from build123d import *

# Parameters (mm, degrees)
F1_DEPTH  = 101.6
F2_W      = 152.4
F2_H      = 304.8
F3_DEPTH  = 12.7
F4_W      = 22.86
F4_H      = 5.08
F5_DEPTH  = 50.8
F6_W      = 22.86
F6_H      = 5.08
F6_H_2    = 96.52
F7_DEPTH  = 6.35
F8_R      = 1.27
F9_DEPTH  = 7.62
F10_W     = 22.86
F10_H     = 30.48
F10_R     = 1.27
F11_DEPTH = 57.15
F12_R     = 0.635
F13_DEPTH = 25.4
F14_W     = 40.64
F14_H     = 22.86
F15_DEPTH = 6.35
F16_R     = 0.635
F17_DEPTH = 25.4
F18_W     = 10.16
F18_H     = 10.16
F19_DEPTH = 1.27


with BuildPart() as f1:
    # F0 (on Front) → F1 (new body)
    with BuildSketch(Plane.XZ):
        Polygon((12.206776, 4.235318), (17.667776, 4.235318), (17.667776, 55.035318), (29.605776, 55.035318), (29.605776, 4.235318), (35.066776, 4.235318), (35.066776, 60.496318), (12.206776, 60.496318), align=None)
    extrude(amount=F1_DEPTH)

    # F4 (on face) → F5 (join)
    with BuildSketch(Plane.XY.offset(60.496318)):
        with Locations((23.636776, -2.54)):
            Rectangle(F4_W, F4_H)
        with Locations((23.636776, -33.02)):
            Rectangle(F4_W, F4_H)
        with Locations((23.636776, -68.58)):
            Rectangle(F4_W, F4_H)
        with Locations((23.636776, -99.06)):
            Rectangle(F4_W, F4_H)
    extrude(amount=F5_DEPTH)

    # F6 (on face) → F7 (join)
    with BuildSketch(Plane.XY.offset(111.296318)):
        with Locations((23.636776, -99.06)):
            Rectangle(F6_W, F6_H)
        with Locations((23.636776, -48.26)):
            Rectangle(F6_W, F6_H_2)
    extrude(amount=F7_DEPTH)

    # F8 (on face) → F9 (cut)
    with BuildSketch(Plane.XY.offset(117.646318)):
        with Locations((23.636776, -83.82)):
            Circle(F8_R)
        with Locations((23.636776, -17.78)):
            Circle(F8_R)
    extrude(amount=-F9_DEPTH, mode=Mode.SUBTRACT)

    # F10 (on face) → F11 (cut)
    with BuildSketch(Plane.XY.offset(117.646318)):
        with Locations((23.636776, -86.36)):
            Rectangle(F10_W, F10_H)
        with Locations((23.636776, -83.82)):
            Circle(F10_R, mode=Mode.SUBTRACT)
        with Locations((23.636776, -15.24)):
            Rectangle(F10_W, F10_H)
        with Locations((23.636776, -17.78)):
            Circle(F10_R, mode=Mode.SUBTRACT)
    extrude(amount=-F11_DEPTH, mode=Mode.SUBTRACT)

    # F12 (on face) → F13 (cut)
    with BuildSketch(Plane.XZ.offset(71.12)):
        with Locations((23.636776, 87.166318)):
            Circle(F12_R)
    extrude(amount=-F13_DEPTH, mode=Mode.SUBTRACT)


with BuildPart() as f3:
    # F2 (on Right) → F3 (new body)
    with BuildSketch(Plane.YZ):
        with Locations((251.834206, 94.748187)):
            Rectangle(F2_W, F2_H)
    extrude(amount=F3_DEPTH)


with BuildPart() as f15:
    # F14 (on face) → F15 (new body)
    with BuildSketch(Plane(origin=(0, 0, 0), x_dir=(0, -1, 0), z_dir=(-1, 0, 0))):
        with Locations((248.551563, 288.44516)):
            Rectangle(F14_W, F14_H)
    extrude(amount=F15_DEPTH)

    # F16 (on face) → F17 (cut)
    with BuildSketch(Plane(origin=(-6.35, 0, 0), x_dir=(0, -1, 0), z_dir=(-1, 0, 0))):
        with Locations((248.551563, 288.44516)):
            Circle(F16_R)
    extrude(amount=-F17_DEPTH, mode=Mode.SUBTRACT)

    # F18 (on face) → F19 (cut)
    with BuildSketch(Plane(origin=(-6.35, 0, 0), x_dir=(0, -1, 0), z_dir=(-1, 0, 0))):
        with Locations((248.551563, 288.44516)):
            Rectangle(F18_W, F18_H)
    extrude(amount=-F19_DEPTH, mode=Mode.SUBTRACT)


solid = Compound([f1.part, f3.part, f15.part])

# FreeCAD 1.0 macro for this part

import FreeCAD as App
import Part
import Sketcher
from FreeCAD import Vector
Q = App.Units.Quantity


def add_polygon(sketch, points):
    """Adds a closed chain of lines whose ends are joined by coincident constraints."""
    first, n = sketch.GeometryCount, len(points)
    for a, b in zip(points, points[1:] + points[:1]):
        sketch.addGeometry(Part.LineSegment(App.Vector(*a, 0), App.Vector(*b, 0)), False)
    for i in range(n):
        sketch.addConstraint(Sketcher.Constraint("Coincident", first + i, 2, first + (i + 1) % n, 1))

doc = App.newDocument("Part")
body = doc.addObject("PartDesign::Body", "Body")

sketch1 = doc.addObject("Sketcher::SketchObject", "Sketch")
body.addObject(sketch1)
sketch1.AttachmentSupport = (doc.XZ_Plane, [""])
sketch1.MapMode = "FlatFace"
add_polygon(sketch1, [(12.206776, 4.235318), (17.667776, 4.235318), (17.667776, 55.035318), (29.605776, 55.035318), (29.605776, 4.235318), (35.066776, 4.235318), (35.066776, 60.496318), (12.206776, 60.496318)])
sketch1.addConstraint(Sketcher.Constraint("Horizontal", 0))
sketch1.addConstraint(Sketcher.Constraint("Vertical", 1))
sketch1.addConstraint(Sketcher.Constraint("Horizontal", 2))
sketch1.addConstraint(Sketcher.Constraint("Vertical", 3))
sketch1.addConstraint(Sketcher.Constraint("Horizontal", 4))
sketch1.addConstraint(Sketcher.Constraint("Vertical", 5))
sketch1.addConstraint(Sketcher.Constraint("Horizontal", 6))
sketch1.addConstraint(Sketcher.Constraint("Vertical", 7))
sketch1.addConstraint(Sketcher.Constraint("Horizontal", 0, 2, 3, 2))
sketch1.addConstraint(Sketcher.Constraint("Equal", 0, 4))
sketch1.addConstraint(Sketcher.Constraint("DistanceY", 1, 1, 1, 2, Q("2 in")))
sketch1.addConstraint(Sketcher.Constraint("DistanceX", 6, 2, 6, 1, Q("0.9 in")))
sketch1.addConstraint(Sketcher.Constraint("DistanceX", 2, 1, 2, 2, Q("0.47 in")))
sketch1.addConstraint(Sketcher.Constraint("DistanceY", 5, 1, 5, 2, Q("2.215 in")))
sketch1.addConstraint(Sketcher.Constraint("DistanceY", -1, 1, 0, 2, 4.235318))
sketch1.addConstraint(Sketcher.Constraint("DistanceX", -1, 1, 0, 2, 17.667776))
pad1 = doc.addObject("PartDesign::Pad", "Pad")
body.addObject(pad1)
pad1.Profile = sketch1
pad1.Length = Q("4 in")

sketch2 = doc.addObject("Sketcher::SketchObject", "Sketch001")
body.addObject(sketch2)
sketch2.AttachmentSupport = (doc.XY_Plane, [""])
sketch2.MapMode = "FlatFace"
sketch2.AttachmentOffset = App.Placement(Vector(0, 0, 60.496318), App.Rotation())
add_polygon(sketch2, [(12.206776, 0), (12.206776, -5.08), (35.066776, -5.08), (35.066776, 0)])
add_polygon(sketch2, [(12.206776, -30.48), (12.206776, -35.56), (35.066776, -35.56), (35.066776, -30.48)])
add_polygon(sketch2, [(12.206776, -66.04), (12.206776, -71.12), (35.066776, -71.12), (35.066776, -66.04)])
add_polygon(sketch2, [(12.206776, -96.52), (12.206776, -101.6), (35.066776, -101.6), (35.066776, -96.52)])
sketch2.addConstraint(Sketcher.Constraint("Vertical", 0))
sketch2.addConstraint(Sketcher.Constraint("Horizontal", 1))
sketch2.addConstraint(Sketcher.Constraint("Vertical", 2))
sketch2.addConstraint(Sketcher.Constraint("Horizontal", 3))
sketch2.addConstraint(Sketcher.Constraint("Vertical", 4))
sketch2.addConstraint(Sketcher.Constraint("Horizontal", 5))
sketch2.addConstraint(Sketcher.Constraint("Vertical", 6))
sketch2.addConstraint(Sketcher.Constraint("Horizontal", 7))
sketch2.addConstraint(Sketcher.Constraint("Vertical", 8))
sketch2.addConstraint(Sketcher.Constraint("Horizontal", 9))
sketch2.addConstraint(Sketcher.Constraint("Vertical", 10))
sketch2.addConstraint(Sketcher.Constraint("Horizontal", 11))
sketch2.addConstraint(Sketcher.Constraint("Vertical", 12))
sketch2.addConstraint(Sketcher.Constraint("Horizontal", 13))
sketch2.addConstraint(Sketcher.Constraint("Vertical", 14))
sketch2.addConstraint(Sketcher.Constraint("Horizontal", 15))
sketch2.addConstraint(Sketcher.Constraint("PointOnObject", 2, 2, -1))
sketch2.addConstraint(Sketcher.Constraint("Vertical", 3, 2, 4, 2))
sketch2.addConstraint(Sketcher.Constraint("Vertical", 2, 2, 5, 2))
sketch2.addConstraint(Sketcher.Constraint("Vertical", 7, 2, 8, 2))
sketch2.addConstraint(Sketcher.Constraint("Vertical", 6, 2, 9, 2))
sketch2.addConstraint(Sketcher.Constraint("Vertical", 11, 2, 12, 2))
sketch2.addConstraint(Sketcher.Constraint("Vertical", 10, 2, 13, 2))
sketch2.addConstraint(Sketcher.Constraint("Equal", 2, 4))
sketch2.addConstraint(Sketcher.Constraint("Equal", 6, 8))
sketch2.addConstraint(Sketcher.Constraint("Equal", 10, 12))
sketch2.addConstraint(Sketcher.Constraint("DistanceX", 1, 1, 1, 2, Q("0.9 in")))
sketch2.addConstraint(Sketcher.Constraint("DistanceY", 0, 2, 0, 1, Q("0.2 in")))
sketch2.addConstraint(Sketcher.Constraint("DistanceY", 12, 2, -1, 1, Q("4 in")))
sketch2.addConstraint(Sketcher.Constraint("DistanceY", 6, 2, 1, 2, Q("1 in")))
sketch2.addConstraint(Sketcher.Constraint("DistanceY", 14, 2, 9, 2, Q("1 in")))
sketch2.addConstraint(Sketcher.Constraint("DistanceX", -1, 1, 0, 2, 12.206776))
pad2 = doc.addObject("PartDesign::Pad", "Pad001")
body.addObject(pad2)
pad2.Profile = sketch2
pad2.Length = Q("2 in")

sketch3 = doc.addObject("Sketcher::SketchObject", "Sketch002")
body.addObject(sketch3)
sketch3.AttachmentSupport = (doc.XY_Plane, [""])
sketch3.MapMode = "FlatFace"
sketch3.AttachmentOffset = App.Placement(Vector(0, 0, 111.296318), App.Rotation())
add_polygon(sketch3, [(12.206776, -101.6), (35.066776, -101.6), (35.066776, 0), (12.206776, 0)])
sketch3.addConstraint(Sketcher.Constraint("Horizontal", 0))
sketch3.addConstraint(Sketcher.Constraint("Vertical", 1))
sketch3.addConstraint(Sketcher.Constraint("Horizontal", 2))
sketch3.addConstraint(Sketcher.Constraint("Vertical", 3))
sketch3.addConstraint(Sketcher.Constraint("PointOnObject", 1, 2, -1))
sketch3.addConstraint(Sketcher.Constraint("DistanceY", 1, 1, 1, 2, Q("4 in")))
sketch3.addConstraint(Sketcher.Constraint("DistanceX", 0, 1, 0, 2, Q("0.9 in")))
sketch3.addConstraint(Sketcher.Constraint("DistanceX", -1, 1, 0, 2, 35.066776))
pad3 = doc.addObject("PartDesign::Pad", "Pad002")
body.addObject(pad3)
pad3.Profile = sketch3
pad3.Length = Q("0.25 in")

sketch4 = doc.addObject("Sketcher::SketchObject", "Sketch003")
body.addObject(sketch4)
sketch4.AttachmentSupport = (doc.XY_Plane, [""])
sketch4.MapMode = "FlatFace"
sketch4.AttachmentOffset = App.Placement(Vector(0, 0, 117.646318), App.Rotation())
sketch4.addGeometry(Part.Circle(Vector(23.636776, -83.82, 0), Vector(0, 0, 1), 1.27), False)
sketch4.addGeometry(Part.Circle(Vector(23.636776, -17.78, 0), Vector(0, 0, 1), 1.27), False)
sketch4.addConstraint(Sketcher.Constraint("Equal", 0, 1))
sketch4.addConstraint(Sketcher.Constraint("Vertical", 0, 3, 1, 3))
sketch4.addConstraint(Sketcher.Constraint("Diameter", 0, Q("0.1 in")))
sketch4.addConstraint(Sketcher.Constraint("DistanceY", 0, 3, -1, 1, Q("3.3 in")))
sketch4.addConstraint(Sketcher.Constraint("DistanceY", 1, 3, -1, 1, Q("0.7 in")))
sketch4.addConstraint(Sketcher.Constraint("DistanceX", -1, 1, 0, 3, 23.636776))
pocket1 = doc.addObject("PartDesign::Pocket", "Pocket")
body.addObject(pocket1)
pocket1.Profile = sketch4
pocket1.Length = Q("0.3 in")

sketch5 = doc.addObject("Sketcher::SketchObject", "Sketch004")
body.addObject(sketch5)
sketch5.AttachmentSupport = (doc.XY_Plane, [""])
sketch5.MapMode = "FlatFace"
sketch5.AttachmentOffset = App.Placement(Vector(0, 0, 117.646318), App.Rotation())
add_polygon(sketch5, [(12.206776, -71.12), (12.206776, -101.6), (35.066776, -101.6), (35.066776, -71.12)])
sketch5.addGeometry(Part.Circle(Vector(23.636776, -83.82, 0), Vector(0, 0, 1), 1.27), False)
add_polygon(sketch5, [(12.206776, 0), (12.206776, -30.48), (35.066776, -30.48), (35.066776, 0)])
sketch5.addGeometry(Part.Circle(Vector(23.636776, -17.78, 0), Vector(0, 0, 1), 1.27), False)
sketch5.addConstraint(Sketcher.Constraint("Vertical", 0))
sketch5.addConstraint(Sketcher.Constraint("Horizontal", 1))
sketch5.addConstraint(Sketcher.Constraint("Vertical", 2))
sketch5.addConstraint(Sketcher.Constraint("Horizontal", 3))
sketch5.addConstraint(Sketcher.Constraint("Vertical", 5))
sketch5.addConstraint(Sketcher.Constraint("Horizontal", 6))
sketch5.addConstraint(Sketcher.Constraint("Vertical", 7))
sketch5.addConstraint(Sketcher.Constraint("Horizontal", 8))
sketch5.addConstraint(Sketcher.Constraint("Equal", 4, 9))
sketch5.addConstraint(Sketcher.Constraint("PointOnObject", 7, 2, -1))
sketch5.addConstraint(Sketcher.Constraint("Vertical", 4, 3, 9, 3))
sketch5.addConstraint(Sketcher.Constraint("Vertical", 3, 2, 5, 2))
sketch5.addConstraint(Sketcher.Constraint("Vertical", 2, 2, 6, 2))
sketch5.addConstraint(Sketcher.Constraint("Equal", 2, 5))
sketch5.addConstraint(Sketcher.Constraint("Diameter", 4, Q("0.1 in")))
sketch5.addConstraint(Sketcher.Constraint("DistanceX", 1, 1, 1, 2, Q("0.9 in")))
sketch5.addConstraint(Sketcher.Constraint("DistanceY", 0, 2, 0, 1, Q("1.2 in")))
sketch5.addConstraint(Sketcher.Constraint("DistanceY", 0, 2, -1, 1, Q("4 in")))
sketch5.addConstraint(Sketcher.Constraint("DistanceY", 4, 3, -1, 1, Q("3.3 in")))
sketch5.addConstraint(Sketcher.Constraint("DistanceY", 9, 3, -1, 1, Q("0.7 in")))
sketch5.addConstraint(Sketcher.Constraint("DistanceX", 0, 2, 4, 3, Q("0.45 in")))
sketch5.addConstraint(Sketcher.Constraint("DistanceX", -1, 1, 4, 3, 23.636776))
pocket2 = doc.addObject("PartDesign::Pocket", "Pocket001")
body.addObject(pocket2)
pocket2.Profile = sketch5
pocket2.Length = Q("2.25 in")

sketch6 = doc.addObject("Sketcher::SketchObject", "Sketch005")
body.addObject(sketch6)
sketch6.AttachmentSupport = (doc.XZ_Plane, [""])
sketch6.MapMode = "FlatFace"
sketch6.AttachmentOffset = App.Placement(Vector(0, 0, 2.8 * 25.4), App.Rotation())
sketch6.addGeometry(Part.Circle(Vector(23.636776, 87.166318, 0), Vector(0, 0, 1), 0.635), False)
sketch6.addConstraint(Sketcher.Constraint("Diameter", 0, Q("0.05 in")))
sketch6.addConstraint(Sketcher.Constraint("DistanceY", -1, 1, 0, 3, 87.166318))
sketch6.addConstraint(Sketcher.Constraint("DistanceX", -1, 1, 0, 3, 23.636776))
pocket3 = doc.addObject("PartDesign::Pocket", "Pocket002")
body.addObject(pocket3)
pocket3.Profile = sketch6
pocket3.Length = Q("1 in")
body2 = doc.addObject("PartDesign::Body", "Body001")

sketch7 = doc.addObject("Sketcher::SketchObject", "Sketch006")
body2.addObject(sketch7)
sketch7.AttachmentSupport = (doc.getObject("YZ_Plane001"), [""])
sketch7.MapMode = "FlatFace"
add_polygon(sketch7, [(175.634206, 247.148187), (175.634206, -57.651813), (328.034206, -57.651813), (328.034206, 247.148187)])
sketch7.addConstraint(Sketcher.Constraint("Vertical", 0))
sketch7.addConstraint(Sketcher.Constraint("Horizontal", 1))
sketch7.addConstraint(Sketcher.Constraint("Vertical", 2))
sketch7.addConstraint(Sketcher.Constraint("Horizontal", 3))
sketch7.addConstraint(Sketcher.Constraint("DistanceX", 1, 1, 1, 2, Q("6 in")))
sketch7.addConstraint(Sketcher.Constraint("DistanceY", 0, 2, 0, 1, Q("12 in")))
sketch7.addConstraint(Sketcher.Constraint("DistanceX", -1, 1, 0, 2, 175.634206))
sketch7.addConstraint(Sketcher.Constraint("DistanceY", 0, 2, -1, 1, 57.651813))
pad4 = doc.addObject("PartDesign::Pad", "Pad003")
body2.addObject(pad4)
pad4.Profile = sketch7
pad4.Length = Q("0.5 in")
body3 = doc.addObject("PartDesign::Body", "Body002")

sketch8 = doc.addObject("Sketcher::SketchObject", "Sketch007")
body3.addObject(sketch8)
sketch8.AttachmentSupport = (doc.getObject("YZ_Plane002"), [""])
sketch8.MapMode = "FlatFace"
add_polygon(sketch8, [(-228.231563, 299.87516), (-228.231563, 277.01516), (-268.871563, 277.01516), (-268.871563, 299.87516)])
sketch8.addConstraint(Sketcher.Constraint("Vertical", 0))
sketch8.addConstraint(Sketcher.Constraint("Horizontal", 1))
sketch8.addConstraint(Sketcher.Constraint("Vertical", 2))
sketch8.addConstraint(Sketcher.Constraint("Horizontal", 3))
sketch8.addConstraint(Sketcher.Constraint("DistanceX", 1, 2, 1, 1, Q("1.6 in")))
sketch8.addConstraint(Sketcher.Constraint("DistanceY", 0, 2, 0, 1, Q("0.9 in")))
sketch8.addConstraint(Sketcher.Constraint("DistanceY", -1, 1, 0, 2, 277.01516))
sketch8.addConstraint(Sketcher.Constraint("DistanceX", 0, 2, -1, 1, 228.231563))
pad5 = doc.addObject("PartDesign::Pad", "Pad004")
body3.addObject(pad5)
pad5.Profile = sketch8
pad5.Length = Q("0.25 in")
pad5.Reversed = True

sketch9 = doc.addObject("Sketcher::SketchObject", "Sketch008")
body3.addObject(sketch9)
sketch9.AttachmentSupport = (doc.getObject("YZ_Plane002"), [""])
sketch9.MapMode = "FlatFace"
sketch9.AttachmentOffset = App.Placement(Vector(0, 0, -0.25 * 25.4), App.Rotation())
sketch9.addGeometry(Part.Circle(Vector(-248.551563, 288.44516, 0), Vector(0, 0, 1), 0.635), False)
sketch9.addConstraint(Sketcher.Constraint("Diameter", 0, Q("0.05 in")))
sketch9.addConstraint(Sketcher.Constraint("DistanceY", -1, 1, 0, 3, 288.44516))
sketch9.addConstraint(Sketcher.Constraint("DistanceX", 0, 3, -1, 1, 248.551563))
pocket4 = doc.addObject("PartDesign::Pocket", "Pocket003")
body3.addObject(pocket4)
pocket4.Profile = sketch9
pocket4.Length = Q("1 in")
pocket4.Reversed = True

sketch10 = doc.addObject("Sketcher::SketchObject", "Sketch009")
body3.addObject(sketch10)
sketch10.AttachmentSupport = (doc.getObject("YZ_Plane002"), [""])
sketch10.MapMode = "FlatFace"
sketch10.AttachmentOffset = App.Placement(Vector(0, 0, -0.25 * 25.4), App.Rotation())
add_polygon(sketch10, [(-243.471563, 293.52516), (-243.471563, 283.36516), (-253.631563, 283.36516), (-253.631563, 293.52516)])
sketch10.addConstraint(Sketcher.Constraint("Vertical", 0))
sketch10.addConstraint(Sketcher.Constraint("Horizontal", 1))
sketch10.addConstraint(Sketcher.Constraint("Vertical", 2))
sketch10.addConstraint(Sketcher.Constraint("Horizontal", 3))
sketch10.addConstraint(Sketcher.Constraint("Equal", 3, 0))
sketch10.addConstraint(Sketcher.Constraint("DistanceX", 1, 2, 1, 1, Q("0.4 in")))
sketch10.addConstraint(Sketcher.Constraint("DistanceY", -1, 1, 0, 2, 283.36516))
sketch10.addConstraint(Sketcher.Constraint("DistanceX", 0, 2, -1, 1, 243.471563))
pocket5 = doc.addObject("PartDesign::Pocket", "Pocket004")
body3.addObject(pocket5)
pocket5.Profile = sketch10
pocket5.Length = Q("0.05 in")
pocket5.Reversed = True

doc.recompute()
